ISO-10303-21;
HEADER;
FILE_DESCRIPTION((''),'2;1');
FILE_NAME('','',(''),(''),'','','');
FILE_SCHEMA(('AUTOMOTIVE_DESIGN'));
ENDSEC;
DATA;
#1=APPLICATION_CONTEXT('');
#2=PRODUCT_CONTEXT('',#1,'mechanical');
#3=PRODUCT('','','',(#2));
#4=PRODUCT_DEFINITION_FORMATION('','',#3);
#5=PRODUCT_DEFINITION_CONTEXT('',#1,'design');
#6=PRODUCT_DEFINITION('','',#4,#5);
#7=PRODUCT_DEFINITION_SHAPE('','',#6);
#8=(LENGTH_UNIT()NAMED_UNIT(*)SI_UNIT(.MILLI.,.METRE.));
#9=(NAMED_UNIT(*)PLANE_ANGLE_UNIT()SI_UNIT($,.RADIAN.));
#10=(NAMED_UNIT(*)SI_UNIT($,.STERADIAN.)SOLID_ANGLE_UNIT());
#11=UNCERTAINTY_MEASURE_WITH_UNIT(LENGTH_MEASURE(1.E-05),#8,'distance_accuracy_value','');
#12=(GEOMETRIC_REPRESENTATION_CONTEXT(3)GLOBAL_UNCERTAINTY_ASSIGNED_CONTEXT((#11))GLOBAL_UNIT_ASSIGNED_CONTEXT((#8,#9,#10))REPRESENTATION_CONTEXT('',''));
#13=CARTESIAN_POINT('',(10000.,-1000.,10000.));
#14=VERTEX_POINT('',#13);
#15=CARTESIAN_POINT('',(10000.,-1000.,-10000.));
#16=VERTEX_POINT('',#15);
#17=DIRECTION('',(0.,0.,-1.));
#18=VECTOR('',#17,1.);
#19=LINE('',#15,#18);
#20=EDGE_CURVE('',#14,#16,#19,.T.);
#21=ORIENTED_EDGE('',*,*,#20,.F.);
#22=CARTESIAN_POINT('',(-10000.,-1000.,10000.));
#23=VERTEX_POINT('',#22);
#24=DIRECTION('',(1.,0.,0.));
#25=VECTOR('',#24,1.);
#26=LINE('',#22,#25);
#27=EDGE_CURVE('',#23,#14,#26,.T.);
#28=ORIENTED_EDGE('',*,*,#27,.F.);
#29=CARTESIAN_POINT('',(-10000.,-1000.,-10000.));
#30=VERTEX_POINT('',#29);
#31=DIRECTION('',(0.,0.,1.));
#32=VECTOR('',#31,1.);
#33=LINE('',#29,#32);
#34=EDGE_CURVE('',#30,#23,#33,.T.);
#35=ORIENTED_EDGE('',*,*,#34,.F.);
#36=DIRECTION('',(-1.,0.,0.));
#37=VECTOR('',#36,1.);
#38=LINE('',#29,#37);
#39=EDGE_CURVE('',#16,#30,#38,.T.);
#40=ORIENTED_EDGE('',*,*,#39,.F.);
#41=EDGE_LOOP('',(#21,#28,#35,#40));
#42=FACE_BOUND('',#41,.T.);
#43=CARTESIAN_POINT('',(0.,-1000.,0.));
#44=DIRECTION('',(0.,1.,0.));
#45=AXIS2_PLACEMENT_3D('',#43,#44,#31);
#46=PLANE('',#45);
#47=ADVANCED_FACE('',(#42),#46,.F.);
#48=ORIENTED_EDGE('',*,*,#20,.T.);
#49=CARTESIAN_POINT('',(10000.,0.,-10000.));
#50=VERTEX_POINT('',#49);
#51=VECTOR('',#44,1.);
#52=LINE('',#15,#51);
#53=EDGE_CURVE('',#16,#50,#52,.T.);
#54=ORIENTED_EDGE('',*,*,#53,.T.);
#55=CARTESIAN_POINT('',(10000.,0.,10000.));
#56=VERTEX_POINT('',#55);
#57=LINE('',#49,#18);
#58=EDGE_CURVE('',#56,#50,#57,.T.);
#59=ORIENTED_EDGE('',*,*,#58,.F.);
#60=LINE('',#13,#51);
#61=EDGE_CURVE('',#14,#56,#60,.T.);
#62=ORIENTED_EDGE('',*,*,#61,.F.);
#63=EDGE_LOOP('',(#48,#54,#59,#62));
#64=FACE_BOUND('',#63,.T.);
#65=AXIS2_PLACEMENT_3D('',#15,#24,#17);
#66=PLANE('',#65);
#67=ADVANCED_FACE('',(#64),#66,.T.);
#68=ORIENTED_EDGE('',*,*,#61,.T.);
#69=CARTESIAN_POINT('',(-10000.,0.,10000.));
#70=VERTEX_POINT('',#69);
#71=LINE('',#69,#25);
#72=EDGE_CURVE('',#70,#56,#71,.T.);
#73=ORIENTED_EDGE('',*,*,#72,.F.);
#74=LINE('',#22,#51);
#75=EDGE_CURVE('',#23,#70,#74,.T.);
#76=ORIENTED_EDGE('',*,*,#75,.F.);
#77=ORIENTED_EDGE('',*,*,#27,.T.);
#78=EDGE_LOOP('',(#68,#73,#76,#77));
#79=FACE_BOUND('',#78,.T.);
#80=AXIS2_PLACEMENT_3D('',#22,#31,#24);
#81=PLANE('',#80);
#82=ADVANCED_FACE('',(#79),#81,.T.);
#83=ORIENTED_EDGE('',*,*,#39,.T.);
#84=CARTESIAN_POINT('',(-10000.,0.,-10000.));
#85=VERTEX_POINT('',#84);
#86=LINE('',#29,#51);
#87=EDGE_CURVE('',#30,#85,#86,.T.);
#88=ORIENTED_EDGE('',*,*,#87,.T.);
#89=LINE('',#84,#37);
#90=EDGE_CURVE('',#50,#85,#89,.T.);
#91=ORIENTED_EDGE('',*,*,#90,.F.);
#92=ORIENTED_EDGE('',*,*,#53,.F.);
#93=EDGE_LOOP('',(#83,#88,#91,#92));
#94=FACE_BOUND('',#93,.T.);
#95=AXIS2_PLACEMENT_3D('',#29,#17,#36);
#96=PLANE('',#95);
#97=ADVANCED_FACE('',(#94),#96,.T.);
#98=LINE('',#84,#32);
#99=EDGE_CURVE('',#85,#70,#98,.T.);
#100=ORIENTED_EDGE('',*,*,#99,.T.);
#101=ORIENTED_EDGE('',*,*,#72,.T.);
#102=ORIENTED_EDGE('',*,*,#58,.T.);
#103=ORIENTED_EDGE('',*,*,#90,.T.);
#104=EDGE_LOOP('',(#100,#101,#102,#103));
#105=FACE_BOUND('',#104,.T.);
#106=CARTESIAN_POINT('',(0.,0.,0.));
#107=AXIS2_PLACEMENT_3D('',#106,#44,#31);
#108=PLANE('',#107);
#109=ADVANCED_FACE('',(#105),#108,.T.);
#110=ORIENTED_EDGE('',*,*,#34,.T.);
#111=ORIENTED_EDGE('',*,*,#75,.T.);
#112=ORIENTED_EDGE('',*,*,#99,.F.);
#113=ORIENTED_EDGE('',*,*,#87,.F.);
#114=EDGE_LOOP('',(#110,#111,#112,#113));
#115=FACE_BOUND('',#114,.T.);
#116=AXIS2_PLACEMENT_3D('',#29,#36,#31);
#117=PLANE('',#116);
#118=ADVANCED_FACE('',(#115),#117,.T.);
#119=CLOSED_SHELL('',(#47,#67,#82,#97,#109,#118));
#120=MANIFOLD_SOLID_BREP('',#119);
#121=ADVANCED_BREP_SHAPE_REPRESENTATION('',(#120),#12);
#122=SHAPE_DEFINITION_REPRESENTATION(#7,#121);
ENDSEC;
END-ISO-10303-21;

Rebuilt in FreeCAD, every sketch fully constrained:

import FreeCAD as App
import Part
import Sketcher


def add_polygon(sketch, points):
    """Adds a closed chain of lines whose ends are joined by coincident constraints."""
    first, n = sketch.GeometryCount, len(points)
    for a, b in zip(points, points[1:] + points[:1]):
        sketch.addGeometry(Part.LineSegment(App.Vector(*a, 0), App.Vector(*b, 0)), False)
    for i in range(n):
        sketch.addConstraint(Sketcher.Constraint("Coincident", first + i, 2, first + (i + 1) % n, 1))

doc = App.newDocument("Part")
body = doc.addObject("PartDesign::Body", "Body")

# Sketch on XZ plane
sketch1 = body.newObject("Sketcher::SketchObject", "Sketch")
sketch1.AttachmentSupport = (doc.getObject("XZ_Plane"), [""])
sketch1.MapMode = "FlatFace"
add_polygon(sketch1, [(-10000, -10000), (-10000, 10000), (10000, 10000), (10000, -10000)])  # lines 0-3
sketch1.addConstraint(Sketcher.Constraint("Vertical", 0))
sketch1.addConstraint(Sketcher.Constraint("Horizontal", 1))
sketch1.addConstraint(Sketcher.Constraint("Vertical", 2))
sketch1.addConstraint(Sketcher.Constraint("Horizontal", 3))
sketch1.addConstraint(Sketcher.Constraint("Symmetric", 0, 2, 2, 2, -1, 1))
sketch1.addConstraint(Sketcher.Constraint("Equal", 3, 0))
sketch1.addConstraint(Sketcher.Constraint("DistanceX", 1, 1, 1, 2, 20000.0))
pad1 = body.newObject("PartDesign::Pad", "Pad")
pad1.Profile = sketch1
pad1.Length = 1000

doc.recompute()
